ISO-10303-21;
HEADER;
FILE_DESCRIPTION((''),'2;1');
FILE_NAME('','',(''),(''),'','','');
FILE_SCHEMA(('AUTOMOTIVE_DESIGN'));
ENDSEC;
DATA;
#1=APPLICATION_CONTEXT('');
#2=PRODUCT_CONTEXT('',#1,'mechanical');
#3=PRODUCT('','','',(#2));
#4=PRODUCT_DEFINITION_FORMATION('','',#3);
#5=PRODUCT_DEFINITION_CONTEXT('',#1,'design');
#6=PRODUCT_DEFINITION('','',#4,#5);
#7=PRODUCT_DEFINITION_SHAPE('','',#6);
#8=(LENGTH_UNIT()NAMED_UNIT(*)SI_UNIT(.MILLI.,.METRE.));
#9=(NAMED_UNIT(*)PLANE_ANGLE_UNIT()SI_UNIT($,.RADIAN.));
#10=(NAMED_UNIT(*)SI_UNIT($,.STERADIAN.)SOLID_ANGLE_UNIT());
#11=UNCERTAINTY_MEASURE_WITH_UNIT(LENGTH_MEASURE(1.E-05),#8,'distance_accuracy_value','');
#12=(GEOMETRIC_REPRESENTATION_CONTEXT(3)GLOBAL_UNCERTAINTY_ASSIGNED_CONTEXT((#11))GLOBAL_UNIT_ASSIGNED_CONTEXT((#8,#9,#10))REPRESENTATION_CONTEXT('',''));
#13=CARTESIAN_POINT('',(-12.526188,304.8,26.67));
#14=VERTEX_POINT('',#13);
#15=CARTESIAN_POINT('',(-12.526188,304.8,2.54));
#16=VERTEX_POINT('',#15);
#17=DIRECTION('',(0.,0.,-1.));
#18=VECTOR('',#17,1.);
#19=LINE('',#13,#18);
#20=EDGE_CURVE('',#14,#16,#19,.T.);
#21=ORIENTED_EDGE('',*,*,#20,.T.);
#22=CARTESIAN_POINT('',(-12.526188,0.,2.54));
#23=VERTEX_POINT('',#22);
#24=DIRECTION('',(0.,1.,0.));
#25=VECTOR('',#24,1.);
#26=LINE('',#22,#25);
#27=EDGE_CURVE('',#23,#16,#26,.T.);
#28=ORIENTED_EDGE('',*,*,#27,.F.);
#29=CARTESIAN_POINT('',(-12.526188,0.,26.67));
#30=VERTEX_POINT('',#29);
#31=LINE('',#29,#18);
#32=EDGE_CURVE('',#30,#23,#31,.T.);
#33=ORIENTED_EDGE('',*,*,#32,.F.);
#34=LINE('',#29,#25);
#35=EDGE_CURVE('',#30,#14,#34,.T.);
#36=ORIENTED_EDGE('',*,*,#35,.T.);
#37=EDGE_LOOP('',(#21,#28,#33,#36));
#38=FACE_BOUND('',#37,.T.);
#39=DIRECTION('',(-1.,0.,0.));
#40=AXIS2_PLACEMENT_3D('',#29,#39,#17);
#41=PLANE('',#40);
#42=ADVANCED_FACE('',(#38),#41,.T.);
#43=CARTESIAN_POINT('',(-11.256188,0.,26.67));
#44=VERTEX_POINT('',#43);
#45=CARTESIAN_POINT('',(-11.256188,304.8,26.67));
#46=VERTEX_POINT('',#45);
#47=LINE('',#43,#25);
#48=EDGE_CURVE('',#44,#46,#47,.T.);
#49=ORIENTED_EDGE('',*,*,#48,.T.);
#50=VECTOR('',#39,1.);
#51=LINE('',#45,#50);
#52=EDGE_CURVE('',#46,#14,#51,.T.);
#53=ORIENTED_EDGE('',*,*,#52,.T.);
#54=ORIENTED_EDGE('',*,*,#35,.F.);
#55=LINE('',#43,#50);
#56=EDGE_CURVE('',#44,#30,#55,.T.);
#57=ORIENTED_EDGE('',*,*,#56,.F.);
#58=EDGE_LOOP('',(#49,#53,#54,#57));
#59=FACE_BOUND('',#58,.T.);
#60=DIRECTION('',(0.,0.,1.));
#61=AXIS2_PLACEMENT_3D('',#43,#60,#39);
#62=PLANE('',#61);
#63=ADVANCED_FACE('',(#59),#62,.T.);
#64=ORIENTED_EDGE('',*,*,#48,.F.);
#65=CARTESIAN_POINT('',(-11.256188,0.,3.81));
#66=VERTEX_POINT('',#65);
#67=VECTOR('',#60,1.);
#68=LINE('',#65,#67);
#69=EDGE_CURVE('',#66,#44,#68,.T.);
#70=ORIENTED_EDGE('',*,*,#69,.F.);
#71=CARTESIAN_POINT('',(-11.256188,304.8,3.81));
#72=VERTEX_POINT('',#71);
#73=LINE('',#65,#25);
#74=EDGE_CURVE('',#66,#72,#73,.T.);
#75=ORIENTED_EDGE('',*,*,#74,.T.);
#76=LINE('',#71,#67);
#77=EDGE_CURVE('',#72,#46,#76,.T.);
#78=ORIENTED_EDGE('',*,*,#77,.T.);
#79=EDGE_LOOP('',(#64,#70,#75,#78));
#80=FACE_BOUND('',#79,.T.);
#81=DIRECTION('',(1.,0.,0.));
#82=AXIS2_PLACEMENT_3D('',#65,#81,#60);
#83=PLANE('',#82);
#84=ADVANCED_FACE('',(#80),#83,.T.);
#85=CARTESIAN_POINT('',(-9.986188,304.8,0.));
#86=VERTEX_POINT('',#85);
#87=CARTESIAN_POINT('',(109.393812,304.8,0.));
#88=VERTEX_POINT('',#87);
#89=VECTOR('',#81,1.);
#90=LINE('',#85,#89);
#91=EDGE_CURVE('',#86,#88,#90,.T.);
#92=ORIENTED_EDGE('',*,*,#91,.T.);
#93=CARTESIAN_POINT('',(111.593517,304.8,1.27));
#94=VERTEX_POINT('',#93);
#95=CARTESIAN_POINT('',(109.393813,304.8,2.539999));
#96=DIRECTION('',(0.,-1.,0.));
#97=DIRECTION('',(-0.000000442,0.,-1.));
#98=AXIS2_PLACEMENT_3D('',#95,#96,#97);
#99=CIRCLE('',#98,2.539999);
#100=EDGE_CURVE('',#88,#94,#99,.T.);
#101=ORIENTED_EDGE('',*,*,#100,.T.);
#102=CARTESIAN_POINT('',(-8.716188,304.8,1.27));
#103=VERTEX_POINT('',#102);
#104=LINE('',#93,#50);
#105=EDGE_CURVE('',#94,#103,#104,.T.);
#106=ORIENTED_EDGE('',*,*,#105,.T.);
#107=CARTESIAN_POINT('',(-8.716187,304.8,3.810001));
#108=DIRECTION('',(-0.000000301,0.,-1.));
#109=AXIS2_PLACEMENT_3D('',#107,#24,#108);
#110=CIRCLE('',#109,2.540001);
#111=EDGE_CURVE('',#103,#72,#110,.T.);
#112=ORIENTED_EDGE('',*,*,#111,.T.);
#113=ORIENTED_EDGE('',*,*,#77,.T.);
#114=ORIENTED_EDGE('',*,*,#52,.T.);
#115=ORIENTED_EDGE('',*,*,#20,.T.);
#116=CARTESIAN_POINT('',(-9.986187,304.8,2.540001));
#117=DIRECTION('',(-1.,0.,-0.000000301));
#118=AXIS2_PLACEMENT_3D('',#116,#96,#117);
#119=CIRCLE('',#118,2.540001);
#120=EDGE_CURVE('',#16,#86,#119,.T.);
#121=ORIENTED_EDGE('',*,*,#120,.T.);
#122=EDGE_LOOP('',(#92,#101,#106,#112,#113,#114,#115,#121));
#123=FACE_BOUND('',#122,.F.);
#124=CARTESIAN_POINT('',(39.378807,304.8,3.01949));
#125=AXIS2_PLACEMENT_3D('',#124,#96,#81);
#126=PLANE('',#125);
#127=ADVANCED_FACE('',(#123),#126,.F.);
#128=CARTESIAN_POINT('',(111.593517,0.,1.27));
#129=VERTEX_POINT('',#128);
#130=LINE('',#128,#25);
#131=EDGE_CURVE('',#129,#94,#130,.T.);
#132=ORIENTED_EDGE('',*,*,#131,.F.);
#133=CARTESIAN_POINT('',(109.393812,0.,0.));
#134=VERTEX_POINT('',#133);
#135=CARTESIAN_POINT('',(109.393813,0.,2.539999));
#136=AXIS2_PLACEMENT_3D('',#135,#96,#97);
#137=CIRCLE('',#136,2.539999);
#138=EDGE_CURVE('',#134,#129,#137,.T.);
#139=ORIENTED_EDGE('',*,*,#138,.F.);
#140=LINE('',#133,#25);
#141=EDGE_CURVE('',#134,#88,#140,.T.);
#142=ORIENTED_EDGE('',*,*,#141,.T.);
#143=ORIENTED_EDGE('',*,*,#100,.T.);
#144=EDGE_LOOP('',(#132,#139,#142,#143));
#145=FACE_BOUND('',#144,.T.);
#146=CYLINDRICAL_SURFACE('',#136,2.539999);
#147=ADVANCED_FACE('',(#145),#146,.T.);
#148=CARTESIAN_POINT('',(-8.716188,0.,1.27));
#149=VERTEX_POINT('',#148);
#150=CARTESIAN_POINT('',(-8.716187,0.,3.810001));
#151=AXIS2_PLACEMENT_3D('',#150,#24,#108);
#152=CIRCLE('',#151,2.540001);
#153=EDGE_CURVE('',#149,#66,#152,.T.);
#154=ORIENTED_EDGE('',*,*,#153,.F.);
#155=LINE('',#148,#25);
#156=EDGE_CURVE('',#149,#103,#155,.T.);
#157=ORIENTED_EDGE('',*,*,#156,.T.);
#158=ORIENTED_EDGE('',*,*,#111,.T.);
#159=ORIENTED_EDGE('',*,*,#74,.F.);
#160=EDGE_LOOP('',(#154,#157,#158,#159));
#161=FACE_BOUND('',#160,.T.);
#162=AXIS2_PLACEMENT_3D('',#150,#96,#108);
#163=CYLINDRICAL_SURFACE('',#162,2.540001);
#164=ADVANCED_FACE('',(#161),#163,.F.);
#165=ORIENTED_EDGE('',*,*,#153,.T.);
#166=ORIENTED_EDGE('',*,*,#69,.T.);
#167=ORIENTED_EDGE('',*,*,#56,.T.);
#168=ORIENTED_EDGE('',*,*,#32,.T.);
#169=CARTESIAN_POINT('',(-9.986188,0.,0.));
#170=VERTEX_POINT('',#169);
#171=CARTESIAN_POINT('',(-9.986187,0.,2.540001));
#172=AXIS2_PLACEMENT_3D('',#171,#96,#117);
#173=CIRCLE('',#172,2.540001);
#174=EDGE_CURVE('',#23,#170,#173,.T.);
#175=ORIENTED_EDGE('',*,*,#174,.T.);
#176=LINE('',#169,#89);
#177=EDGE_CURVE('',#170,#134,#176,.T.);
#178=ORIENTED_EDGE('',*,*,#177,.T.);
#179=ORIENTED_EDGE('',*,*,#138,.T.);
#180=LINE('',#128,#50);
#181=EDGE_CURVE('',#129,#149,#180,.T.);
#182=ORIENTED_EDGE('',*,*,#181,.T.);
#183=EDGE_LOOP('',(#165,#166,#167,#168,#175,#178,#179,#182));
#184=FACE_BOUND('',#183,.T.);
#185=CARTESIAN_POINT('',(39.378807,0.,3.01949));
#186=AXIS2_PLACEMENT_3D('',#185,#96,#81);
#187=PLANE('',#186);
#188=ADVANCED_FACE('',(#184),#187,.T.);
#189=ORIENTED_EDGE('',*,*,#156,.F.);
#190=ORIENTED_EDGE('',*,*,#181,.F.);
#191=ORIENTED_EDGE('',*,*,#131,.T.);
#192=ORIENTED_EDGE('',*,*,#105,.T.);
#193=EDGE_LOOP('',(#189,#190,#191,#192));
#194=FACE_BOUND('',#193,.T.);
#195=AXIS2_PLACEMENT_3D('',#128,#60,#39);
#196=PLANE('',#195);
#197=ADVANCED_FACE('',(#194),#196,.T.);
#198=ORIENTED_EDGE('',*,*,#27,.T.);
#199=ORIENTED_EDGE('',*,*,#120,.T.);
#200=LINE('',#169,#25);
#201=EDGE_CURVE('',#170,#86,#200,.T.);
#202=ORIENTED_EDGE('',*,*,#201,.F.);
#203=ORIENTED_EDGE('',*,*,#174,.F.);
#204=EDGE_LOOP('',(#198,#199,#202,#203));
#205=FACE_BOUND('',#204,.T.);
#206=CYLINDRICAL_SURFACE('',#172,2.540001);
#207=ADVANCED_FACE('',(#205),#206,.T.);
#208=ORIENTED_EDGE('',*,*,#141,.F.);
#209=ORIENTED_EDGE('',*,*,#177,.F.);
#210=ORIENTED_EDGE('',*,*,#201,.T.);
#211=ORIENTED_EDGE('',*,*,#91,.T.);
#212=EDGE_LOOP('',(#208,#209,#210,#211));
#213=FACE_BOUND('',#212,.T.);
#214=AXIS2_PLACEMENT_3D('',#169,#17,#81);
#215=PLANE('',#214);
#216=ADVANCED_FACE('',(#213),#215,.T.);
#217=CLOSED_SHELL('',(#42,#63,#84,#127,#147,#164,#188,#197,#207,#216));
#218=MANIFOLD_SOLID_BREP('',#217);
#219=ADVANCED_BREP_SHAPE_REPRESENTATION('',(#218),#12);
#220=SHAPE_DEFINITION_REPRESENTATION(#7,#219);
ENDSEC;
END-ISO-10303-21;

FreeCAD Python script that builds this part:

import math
import FreeCAD as App
import Part
import Sketcher

V = App.Vector
Q = App.Units.Quantity

doc = App.newDocument("Part")
body = doc.addObject("PartDesign::Body", "Body")

# Sketch on XZ plane
sketch1 = body.newObject("Sketcher::SketchObject", "Sketch")
sketch1.AttachmentSupport = (doc.getObject("XZ_Plane"), [""])
sketch1.MapMode = "FlatFace"
sketch1.addGeometry(Part.LineSegment(V(-10, 0, 0), V(109.4, 0, 0)), False)
sketch1.addGeometry(Part.ArcOfCircle(Part.Circle(V(109.4, 2.5, 0), V(0, 0, 1), 2.5), math.radians(-90), math.radians(-30)), False)
sketch1.addGeometry(Part.LineSegment(V(111.6, 1.3, 0), V(-8.7, 1.3, 0)), False)
sketch1.addGeometry(Part.ArcOfCircle(Part.Circle(V(-8.7, 3.8, 0), V(0, 0, 1), 2.5), math.radians(-180), math.radians(-90)), False)
sketch1.addGeometry(Part.LineSegment(V(-11.3, 3.8, 0), V(-11.3, 26.7, 0)), False)
sketch1.addGeometry(Part.LineSegment(V(-11.3, 26.7, 0), V(-12.5, 26.7, 0)), False)
sketch1.addGeometry(Part.LineSegment(V(-12.5, 26.7, 0), V(-12.5, 2.5, 0)), False)
sketch1.addGeometry(Part.ArcOfCircle(Part.Circle(V(-10, 2.5, 0), V(0, 0, 1), 2.5), math.radians(-180), math.radians(-90)), False)
sketch1.addConstraint(Sketcher.Constraint("Tangent", 0, 2, 1, 1))
sketch1.addConstraint(Sketcher.Constraint("Coincident", 1, 2, 2, 1))
sketch1.addConstraint(Sketcher.Constraint("Tangent", 2, 2, 3, 2))
sketch1.addConstraint(Sketcher.Constraint("Tangent", 3, 1, 4, 1))
sketch1.addConstraint(Sketcher.Constraint("Coincident", 4, 2, 5, 1))
sketch1.addConstraint(Sketcher.Constraint("Coincident", 5, 2, 6, 1))
sketch1.addConstraint(Sketcher.Constraint("Tangent", 6, 2, 7, 1))
sketch1.addConstraint(Sketcher.Constraint("Tangent", 7, 2, 0, 1))
sketch1.addConstraint(Sketcher.Constraint("Horizontal", 0))
sketch1.addConstraint(Sketcher.Constraint("Horizontal", 2))
sketch1.addConstraint(Sketcher.Constraint("Vertical", 4))
sketch1.addConstraint(Sketcher.Constraint("Horizontal", 5))
sketch1.addConstraint(Sketcher.Constraint("Vertical", 6))
sketch1.addConstraint(Sketcher.Constraint("Equal", 1, 3))
sketch1.addConstraint(Sketcher.Constraint("Equal", 3, 7))
sketch1.addConstraint(Sketcher.Constraint("PointOnObject", 0, 2, -1))
sketch1.addConstraint(Sketcher.Constraint("Radius", 1, Q("0.1 in")))
sketch1.addConstraint(Sketcher.Constraint("DistanceX", 0, 1, 0, 2, Q("4.7 in")))
sketch1.addConstraint(Sketcher.Constraint("DistanceY", 4, 1, 4, 2, Q("0.9 in")))
sketch1.addConstraint(Sketcher.Constraint("DistanceX", 5, 2, 5, 1, Q("0.05 in")))
sketch1.addConstraint(Sketcher.Constraint("DistanceY", 6, 2, 6, 1, Q("0.95 in")))
sketch1.addConstraint(Sketcher.Constraint("DistanceX", -1, 1, 0, 2, 109.393812))
pad1 = body.newObject("PartDesign::Pad", "Pad")
pad1.Profile = sketch1
pad1.Length = Q("12 in")
pad1.Reversed = True

doc.recompute()
